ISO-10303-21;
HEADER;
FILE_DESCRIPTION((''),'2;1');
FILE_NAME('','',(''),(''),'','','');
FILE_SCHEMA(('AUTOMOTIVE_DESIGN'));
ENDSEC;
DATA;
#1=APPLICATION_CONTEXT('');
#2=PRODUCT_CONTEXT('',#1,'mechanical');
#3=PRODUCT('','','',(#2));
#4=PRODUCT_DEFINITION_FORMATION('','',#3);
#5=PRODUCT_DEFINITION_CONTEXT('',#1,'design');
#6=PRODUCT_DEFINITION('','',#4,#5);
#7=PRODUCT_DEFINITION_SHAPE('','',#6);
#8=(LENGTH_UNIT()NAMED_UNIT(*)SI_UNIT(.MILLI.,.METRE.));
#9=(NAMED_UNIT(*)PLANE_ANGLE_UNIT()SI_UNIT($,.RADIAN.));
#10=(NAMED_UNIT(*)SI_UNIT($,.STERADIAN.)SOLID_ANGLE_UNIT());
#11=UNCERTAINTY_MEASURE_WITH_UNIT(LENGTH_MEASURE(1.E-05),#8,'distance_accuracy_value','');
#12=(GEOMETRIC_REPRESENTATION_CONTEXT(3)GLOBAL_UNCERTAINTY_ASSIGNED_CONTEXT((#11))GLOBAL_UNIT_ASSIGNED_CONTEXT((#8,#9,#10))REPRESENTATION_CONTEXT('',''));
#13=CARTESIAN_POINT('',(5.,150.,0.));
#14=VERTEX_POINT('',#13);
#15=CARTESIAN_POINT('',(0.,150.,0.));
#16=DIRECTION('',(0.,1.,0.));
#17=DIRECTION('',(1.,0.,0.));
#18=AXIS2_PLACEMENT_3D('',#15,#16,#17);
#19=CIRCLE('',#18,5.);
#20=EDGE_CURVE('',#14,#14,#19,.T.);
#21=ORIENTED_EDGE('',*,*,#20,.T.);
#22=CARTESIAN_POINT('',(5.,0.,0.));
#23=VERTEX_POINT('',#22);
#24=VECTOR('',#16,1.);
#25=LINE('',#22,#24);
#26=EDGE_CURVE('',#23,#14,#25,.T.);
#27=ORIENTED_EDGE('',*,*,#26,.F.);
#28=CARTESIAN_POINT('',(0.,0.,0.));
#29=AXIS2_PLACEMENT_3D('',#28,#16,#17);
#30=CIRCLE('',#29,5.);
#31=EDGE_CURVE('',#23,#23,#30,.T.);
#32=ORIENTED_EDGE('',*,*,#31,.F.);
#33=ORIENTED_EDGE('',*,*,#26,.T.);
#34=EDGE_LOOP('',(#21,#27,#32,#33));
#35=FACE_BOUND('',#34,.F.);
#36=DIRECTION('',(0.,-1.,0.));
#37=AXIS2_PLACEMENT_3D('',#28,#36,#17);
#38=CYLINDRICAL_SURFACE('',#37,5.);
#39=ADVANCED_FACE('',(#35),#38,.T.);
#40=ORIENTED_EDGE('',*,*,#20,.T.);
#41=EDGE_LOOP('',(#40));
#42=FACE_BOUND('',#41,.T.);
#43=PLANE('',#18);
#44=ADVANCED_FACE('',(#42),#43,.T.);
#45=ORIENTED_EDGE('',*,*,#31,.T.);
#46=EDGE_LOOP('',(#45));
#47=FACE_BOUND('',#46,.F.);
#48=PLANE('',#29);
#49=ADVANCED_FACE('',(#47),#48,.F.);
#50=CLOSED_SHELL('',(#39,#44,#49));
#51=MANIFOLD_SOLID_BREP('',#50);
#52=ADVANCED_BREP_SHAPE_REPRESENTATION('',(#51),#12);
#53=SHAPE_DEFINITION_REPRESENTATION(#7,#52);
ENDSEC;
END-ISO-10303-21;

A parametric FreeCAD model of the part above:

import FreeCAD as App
import Part
import Sketcher
from FreeCAD import Vector

doc = App.newDocument("Part")
body = doc.addObject("PartDesign::Body", "Body")

# Sketch on XZ plane
sketch1 = doc.addObject("Sketcher::SketchObject", "Sketch")
body.addObject(sketch1)
sketch1.AttachmentSupport = (doc.XZ_Plane, [""])
sketch1.MapMode = "FlatFace"
sketch1.addGeometry(Part.Circle(Vector(0, 0, 0), Vector(0, 0, 1), 5), False)
sketch1.addConstraint(Sketcher.Constraint("Coincident", 0, 3, -1, 1))
sketch1.addConstraint(Sketcher.Constraint("Diameter", 0, 10.0))
pad1 = doc.addObject("PartDesign::Pad", "Pad")
body.addObject(pad1)
pad1.Profile = sketch1
pad1.Length = 150
pad1.Reversed = True

doc.recompute()
